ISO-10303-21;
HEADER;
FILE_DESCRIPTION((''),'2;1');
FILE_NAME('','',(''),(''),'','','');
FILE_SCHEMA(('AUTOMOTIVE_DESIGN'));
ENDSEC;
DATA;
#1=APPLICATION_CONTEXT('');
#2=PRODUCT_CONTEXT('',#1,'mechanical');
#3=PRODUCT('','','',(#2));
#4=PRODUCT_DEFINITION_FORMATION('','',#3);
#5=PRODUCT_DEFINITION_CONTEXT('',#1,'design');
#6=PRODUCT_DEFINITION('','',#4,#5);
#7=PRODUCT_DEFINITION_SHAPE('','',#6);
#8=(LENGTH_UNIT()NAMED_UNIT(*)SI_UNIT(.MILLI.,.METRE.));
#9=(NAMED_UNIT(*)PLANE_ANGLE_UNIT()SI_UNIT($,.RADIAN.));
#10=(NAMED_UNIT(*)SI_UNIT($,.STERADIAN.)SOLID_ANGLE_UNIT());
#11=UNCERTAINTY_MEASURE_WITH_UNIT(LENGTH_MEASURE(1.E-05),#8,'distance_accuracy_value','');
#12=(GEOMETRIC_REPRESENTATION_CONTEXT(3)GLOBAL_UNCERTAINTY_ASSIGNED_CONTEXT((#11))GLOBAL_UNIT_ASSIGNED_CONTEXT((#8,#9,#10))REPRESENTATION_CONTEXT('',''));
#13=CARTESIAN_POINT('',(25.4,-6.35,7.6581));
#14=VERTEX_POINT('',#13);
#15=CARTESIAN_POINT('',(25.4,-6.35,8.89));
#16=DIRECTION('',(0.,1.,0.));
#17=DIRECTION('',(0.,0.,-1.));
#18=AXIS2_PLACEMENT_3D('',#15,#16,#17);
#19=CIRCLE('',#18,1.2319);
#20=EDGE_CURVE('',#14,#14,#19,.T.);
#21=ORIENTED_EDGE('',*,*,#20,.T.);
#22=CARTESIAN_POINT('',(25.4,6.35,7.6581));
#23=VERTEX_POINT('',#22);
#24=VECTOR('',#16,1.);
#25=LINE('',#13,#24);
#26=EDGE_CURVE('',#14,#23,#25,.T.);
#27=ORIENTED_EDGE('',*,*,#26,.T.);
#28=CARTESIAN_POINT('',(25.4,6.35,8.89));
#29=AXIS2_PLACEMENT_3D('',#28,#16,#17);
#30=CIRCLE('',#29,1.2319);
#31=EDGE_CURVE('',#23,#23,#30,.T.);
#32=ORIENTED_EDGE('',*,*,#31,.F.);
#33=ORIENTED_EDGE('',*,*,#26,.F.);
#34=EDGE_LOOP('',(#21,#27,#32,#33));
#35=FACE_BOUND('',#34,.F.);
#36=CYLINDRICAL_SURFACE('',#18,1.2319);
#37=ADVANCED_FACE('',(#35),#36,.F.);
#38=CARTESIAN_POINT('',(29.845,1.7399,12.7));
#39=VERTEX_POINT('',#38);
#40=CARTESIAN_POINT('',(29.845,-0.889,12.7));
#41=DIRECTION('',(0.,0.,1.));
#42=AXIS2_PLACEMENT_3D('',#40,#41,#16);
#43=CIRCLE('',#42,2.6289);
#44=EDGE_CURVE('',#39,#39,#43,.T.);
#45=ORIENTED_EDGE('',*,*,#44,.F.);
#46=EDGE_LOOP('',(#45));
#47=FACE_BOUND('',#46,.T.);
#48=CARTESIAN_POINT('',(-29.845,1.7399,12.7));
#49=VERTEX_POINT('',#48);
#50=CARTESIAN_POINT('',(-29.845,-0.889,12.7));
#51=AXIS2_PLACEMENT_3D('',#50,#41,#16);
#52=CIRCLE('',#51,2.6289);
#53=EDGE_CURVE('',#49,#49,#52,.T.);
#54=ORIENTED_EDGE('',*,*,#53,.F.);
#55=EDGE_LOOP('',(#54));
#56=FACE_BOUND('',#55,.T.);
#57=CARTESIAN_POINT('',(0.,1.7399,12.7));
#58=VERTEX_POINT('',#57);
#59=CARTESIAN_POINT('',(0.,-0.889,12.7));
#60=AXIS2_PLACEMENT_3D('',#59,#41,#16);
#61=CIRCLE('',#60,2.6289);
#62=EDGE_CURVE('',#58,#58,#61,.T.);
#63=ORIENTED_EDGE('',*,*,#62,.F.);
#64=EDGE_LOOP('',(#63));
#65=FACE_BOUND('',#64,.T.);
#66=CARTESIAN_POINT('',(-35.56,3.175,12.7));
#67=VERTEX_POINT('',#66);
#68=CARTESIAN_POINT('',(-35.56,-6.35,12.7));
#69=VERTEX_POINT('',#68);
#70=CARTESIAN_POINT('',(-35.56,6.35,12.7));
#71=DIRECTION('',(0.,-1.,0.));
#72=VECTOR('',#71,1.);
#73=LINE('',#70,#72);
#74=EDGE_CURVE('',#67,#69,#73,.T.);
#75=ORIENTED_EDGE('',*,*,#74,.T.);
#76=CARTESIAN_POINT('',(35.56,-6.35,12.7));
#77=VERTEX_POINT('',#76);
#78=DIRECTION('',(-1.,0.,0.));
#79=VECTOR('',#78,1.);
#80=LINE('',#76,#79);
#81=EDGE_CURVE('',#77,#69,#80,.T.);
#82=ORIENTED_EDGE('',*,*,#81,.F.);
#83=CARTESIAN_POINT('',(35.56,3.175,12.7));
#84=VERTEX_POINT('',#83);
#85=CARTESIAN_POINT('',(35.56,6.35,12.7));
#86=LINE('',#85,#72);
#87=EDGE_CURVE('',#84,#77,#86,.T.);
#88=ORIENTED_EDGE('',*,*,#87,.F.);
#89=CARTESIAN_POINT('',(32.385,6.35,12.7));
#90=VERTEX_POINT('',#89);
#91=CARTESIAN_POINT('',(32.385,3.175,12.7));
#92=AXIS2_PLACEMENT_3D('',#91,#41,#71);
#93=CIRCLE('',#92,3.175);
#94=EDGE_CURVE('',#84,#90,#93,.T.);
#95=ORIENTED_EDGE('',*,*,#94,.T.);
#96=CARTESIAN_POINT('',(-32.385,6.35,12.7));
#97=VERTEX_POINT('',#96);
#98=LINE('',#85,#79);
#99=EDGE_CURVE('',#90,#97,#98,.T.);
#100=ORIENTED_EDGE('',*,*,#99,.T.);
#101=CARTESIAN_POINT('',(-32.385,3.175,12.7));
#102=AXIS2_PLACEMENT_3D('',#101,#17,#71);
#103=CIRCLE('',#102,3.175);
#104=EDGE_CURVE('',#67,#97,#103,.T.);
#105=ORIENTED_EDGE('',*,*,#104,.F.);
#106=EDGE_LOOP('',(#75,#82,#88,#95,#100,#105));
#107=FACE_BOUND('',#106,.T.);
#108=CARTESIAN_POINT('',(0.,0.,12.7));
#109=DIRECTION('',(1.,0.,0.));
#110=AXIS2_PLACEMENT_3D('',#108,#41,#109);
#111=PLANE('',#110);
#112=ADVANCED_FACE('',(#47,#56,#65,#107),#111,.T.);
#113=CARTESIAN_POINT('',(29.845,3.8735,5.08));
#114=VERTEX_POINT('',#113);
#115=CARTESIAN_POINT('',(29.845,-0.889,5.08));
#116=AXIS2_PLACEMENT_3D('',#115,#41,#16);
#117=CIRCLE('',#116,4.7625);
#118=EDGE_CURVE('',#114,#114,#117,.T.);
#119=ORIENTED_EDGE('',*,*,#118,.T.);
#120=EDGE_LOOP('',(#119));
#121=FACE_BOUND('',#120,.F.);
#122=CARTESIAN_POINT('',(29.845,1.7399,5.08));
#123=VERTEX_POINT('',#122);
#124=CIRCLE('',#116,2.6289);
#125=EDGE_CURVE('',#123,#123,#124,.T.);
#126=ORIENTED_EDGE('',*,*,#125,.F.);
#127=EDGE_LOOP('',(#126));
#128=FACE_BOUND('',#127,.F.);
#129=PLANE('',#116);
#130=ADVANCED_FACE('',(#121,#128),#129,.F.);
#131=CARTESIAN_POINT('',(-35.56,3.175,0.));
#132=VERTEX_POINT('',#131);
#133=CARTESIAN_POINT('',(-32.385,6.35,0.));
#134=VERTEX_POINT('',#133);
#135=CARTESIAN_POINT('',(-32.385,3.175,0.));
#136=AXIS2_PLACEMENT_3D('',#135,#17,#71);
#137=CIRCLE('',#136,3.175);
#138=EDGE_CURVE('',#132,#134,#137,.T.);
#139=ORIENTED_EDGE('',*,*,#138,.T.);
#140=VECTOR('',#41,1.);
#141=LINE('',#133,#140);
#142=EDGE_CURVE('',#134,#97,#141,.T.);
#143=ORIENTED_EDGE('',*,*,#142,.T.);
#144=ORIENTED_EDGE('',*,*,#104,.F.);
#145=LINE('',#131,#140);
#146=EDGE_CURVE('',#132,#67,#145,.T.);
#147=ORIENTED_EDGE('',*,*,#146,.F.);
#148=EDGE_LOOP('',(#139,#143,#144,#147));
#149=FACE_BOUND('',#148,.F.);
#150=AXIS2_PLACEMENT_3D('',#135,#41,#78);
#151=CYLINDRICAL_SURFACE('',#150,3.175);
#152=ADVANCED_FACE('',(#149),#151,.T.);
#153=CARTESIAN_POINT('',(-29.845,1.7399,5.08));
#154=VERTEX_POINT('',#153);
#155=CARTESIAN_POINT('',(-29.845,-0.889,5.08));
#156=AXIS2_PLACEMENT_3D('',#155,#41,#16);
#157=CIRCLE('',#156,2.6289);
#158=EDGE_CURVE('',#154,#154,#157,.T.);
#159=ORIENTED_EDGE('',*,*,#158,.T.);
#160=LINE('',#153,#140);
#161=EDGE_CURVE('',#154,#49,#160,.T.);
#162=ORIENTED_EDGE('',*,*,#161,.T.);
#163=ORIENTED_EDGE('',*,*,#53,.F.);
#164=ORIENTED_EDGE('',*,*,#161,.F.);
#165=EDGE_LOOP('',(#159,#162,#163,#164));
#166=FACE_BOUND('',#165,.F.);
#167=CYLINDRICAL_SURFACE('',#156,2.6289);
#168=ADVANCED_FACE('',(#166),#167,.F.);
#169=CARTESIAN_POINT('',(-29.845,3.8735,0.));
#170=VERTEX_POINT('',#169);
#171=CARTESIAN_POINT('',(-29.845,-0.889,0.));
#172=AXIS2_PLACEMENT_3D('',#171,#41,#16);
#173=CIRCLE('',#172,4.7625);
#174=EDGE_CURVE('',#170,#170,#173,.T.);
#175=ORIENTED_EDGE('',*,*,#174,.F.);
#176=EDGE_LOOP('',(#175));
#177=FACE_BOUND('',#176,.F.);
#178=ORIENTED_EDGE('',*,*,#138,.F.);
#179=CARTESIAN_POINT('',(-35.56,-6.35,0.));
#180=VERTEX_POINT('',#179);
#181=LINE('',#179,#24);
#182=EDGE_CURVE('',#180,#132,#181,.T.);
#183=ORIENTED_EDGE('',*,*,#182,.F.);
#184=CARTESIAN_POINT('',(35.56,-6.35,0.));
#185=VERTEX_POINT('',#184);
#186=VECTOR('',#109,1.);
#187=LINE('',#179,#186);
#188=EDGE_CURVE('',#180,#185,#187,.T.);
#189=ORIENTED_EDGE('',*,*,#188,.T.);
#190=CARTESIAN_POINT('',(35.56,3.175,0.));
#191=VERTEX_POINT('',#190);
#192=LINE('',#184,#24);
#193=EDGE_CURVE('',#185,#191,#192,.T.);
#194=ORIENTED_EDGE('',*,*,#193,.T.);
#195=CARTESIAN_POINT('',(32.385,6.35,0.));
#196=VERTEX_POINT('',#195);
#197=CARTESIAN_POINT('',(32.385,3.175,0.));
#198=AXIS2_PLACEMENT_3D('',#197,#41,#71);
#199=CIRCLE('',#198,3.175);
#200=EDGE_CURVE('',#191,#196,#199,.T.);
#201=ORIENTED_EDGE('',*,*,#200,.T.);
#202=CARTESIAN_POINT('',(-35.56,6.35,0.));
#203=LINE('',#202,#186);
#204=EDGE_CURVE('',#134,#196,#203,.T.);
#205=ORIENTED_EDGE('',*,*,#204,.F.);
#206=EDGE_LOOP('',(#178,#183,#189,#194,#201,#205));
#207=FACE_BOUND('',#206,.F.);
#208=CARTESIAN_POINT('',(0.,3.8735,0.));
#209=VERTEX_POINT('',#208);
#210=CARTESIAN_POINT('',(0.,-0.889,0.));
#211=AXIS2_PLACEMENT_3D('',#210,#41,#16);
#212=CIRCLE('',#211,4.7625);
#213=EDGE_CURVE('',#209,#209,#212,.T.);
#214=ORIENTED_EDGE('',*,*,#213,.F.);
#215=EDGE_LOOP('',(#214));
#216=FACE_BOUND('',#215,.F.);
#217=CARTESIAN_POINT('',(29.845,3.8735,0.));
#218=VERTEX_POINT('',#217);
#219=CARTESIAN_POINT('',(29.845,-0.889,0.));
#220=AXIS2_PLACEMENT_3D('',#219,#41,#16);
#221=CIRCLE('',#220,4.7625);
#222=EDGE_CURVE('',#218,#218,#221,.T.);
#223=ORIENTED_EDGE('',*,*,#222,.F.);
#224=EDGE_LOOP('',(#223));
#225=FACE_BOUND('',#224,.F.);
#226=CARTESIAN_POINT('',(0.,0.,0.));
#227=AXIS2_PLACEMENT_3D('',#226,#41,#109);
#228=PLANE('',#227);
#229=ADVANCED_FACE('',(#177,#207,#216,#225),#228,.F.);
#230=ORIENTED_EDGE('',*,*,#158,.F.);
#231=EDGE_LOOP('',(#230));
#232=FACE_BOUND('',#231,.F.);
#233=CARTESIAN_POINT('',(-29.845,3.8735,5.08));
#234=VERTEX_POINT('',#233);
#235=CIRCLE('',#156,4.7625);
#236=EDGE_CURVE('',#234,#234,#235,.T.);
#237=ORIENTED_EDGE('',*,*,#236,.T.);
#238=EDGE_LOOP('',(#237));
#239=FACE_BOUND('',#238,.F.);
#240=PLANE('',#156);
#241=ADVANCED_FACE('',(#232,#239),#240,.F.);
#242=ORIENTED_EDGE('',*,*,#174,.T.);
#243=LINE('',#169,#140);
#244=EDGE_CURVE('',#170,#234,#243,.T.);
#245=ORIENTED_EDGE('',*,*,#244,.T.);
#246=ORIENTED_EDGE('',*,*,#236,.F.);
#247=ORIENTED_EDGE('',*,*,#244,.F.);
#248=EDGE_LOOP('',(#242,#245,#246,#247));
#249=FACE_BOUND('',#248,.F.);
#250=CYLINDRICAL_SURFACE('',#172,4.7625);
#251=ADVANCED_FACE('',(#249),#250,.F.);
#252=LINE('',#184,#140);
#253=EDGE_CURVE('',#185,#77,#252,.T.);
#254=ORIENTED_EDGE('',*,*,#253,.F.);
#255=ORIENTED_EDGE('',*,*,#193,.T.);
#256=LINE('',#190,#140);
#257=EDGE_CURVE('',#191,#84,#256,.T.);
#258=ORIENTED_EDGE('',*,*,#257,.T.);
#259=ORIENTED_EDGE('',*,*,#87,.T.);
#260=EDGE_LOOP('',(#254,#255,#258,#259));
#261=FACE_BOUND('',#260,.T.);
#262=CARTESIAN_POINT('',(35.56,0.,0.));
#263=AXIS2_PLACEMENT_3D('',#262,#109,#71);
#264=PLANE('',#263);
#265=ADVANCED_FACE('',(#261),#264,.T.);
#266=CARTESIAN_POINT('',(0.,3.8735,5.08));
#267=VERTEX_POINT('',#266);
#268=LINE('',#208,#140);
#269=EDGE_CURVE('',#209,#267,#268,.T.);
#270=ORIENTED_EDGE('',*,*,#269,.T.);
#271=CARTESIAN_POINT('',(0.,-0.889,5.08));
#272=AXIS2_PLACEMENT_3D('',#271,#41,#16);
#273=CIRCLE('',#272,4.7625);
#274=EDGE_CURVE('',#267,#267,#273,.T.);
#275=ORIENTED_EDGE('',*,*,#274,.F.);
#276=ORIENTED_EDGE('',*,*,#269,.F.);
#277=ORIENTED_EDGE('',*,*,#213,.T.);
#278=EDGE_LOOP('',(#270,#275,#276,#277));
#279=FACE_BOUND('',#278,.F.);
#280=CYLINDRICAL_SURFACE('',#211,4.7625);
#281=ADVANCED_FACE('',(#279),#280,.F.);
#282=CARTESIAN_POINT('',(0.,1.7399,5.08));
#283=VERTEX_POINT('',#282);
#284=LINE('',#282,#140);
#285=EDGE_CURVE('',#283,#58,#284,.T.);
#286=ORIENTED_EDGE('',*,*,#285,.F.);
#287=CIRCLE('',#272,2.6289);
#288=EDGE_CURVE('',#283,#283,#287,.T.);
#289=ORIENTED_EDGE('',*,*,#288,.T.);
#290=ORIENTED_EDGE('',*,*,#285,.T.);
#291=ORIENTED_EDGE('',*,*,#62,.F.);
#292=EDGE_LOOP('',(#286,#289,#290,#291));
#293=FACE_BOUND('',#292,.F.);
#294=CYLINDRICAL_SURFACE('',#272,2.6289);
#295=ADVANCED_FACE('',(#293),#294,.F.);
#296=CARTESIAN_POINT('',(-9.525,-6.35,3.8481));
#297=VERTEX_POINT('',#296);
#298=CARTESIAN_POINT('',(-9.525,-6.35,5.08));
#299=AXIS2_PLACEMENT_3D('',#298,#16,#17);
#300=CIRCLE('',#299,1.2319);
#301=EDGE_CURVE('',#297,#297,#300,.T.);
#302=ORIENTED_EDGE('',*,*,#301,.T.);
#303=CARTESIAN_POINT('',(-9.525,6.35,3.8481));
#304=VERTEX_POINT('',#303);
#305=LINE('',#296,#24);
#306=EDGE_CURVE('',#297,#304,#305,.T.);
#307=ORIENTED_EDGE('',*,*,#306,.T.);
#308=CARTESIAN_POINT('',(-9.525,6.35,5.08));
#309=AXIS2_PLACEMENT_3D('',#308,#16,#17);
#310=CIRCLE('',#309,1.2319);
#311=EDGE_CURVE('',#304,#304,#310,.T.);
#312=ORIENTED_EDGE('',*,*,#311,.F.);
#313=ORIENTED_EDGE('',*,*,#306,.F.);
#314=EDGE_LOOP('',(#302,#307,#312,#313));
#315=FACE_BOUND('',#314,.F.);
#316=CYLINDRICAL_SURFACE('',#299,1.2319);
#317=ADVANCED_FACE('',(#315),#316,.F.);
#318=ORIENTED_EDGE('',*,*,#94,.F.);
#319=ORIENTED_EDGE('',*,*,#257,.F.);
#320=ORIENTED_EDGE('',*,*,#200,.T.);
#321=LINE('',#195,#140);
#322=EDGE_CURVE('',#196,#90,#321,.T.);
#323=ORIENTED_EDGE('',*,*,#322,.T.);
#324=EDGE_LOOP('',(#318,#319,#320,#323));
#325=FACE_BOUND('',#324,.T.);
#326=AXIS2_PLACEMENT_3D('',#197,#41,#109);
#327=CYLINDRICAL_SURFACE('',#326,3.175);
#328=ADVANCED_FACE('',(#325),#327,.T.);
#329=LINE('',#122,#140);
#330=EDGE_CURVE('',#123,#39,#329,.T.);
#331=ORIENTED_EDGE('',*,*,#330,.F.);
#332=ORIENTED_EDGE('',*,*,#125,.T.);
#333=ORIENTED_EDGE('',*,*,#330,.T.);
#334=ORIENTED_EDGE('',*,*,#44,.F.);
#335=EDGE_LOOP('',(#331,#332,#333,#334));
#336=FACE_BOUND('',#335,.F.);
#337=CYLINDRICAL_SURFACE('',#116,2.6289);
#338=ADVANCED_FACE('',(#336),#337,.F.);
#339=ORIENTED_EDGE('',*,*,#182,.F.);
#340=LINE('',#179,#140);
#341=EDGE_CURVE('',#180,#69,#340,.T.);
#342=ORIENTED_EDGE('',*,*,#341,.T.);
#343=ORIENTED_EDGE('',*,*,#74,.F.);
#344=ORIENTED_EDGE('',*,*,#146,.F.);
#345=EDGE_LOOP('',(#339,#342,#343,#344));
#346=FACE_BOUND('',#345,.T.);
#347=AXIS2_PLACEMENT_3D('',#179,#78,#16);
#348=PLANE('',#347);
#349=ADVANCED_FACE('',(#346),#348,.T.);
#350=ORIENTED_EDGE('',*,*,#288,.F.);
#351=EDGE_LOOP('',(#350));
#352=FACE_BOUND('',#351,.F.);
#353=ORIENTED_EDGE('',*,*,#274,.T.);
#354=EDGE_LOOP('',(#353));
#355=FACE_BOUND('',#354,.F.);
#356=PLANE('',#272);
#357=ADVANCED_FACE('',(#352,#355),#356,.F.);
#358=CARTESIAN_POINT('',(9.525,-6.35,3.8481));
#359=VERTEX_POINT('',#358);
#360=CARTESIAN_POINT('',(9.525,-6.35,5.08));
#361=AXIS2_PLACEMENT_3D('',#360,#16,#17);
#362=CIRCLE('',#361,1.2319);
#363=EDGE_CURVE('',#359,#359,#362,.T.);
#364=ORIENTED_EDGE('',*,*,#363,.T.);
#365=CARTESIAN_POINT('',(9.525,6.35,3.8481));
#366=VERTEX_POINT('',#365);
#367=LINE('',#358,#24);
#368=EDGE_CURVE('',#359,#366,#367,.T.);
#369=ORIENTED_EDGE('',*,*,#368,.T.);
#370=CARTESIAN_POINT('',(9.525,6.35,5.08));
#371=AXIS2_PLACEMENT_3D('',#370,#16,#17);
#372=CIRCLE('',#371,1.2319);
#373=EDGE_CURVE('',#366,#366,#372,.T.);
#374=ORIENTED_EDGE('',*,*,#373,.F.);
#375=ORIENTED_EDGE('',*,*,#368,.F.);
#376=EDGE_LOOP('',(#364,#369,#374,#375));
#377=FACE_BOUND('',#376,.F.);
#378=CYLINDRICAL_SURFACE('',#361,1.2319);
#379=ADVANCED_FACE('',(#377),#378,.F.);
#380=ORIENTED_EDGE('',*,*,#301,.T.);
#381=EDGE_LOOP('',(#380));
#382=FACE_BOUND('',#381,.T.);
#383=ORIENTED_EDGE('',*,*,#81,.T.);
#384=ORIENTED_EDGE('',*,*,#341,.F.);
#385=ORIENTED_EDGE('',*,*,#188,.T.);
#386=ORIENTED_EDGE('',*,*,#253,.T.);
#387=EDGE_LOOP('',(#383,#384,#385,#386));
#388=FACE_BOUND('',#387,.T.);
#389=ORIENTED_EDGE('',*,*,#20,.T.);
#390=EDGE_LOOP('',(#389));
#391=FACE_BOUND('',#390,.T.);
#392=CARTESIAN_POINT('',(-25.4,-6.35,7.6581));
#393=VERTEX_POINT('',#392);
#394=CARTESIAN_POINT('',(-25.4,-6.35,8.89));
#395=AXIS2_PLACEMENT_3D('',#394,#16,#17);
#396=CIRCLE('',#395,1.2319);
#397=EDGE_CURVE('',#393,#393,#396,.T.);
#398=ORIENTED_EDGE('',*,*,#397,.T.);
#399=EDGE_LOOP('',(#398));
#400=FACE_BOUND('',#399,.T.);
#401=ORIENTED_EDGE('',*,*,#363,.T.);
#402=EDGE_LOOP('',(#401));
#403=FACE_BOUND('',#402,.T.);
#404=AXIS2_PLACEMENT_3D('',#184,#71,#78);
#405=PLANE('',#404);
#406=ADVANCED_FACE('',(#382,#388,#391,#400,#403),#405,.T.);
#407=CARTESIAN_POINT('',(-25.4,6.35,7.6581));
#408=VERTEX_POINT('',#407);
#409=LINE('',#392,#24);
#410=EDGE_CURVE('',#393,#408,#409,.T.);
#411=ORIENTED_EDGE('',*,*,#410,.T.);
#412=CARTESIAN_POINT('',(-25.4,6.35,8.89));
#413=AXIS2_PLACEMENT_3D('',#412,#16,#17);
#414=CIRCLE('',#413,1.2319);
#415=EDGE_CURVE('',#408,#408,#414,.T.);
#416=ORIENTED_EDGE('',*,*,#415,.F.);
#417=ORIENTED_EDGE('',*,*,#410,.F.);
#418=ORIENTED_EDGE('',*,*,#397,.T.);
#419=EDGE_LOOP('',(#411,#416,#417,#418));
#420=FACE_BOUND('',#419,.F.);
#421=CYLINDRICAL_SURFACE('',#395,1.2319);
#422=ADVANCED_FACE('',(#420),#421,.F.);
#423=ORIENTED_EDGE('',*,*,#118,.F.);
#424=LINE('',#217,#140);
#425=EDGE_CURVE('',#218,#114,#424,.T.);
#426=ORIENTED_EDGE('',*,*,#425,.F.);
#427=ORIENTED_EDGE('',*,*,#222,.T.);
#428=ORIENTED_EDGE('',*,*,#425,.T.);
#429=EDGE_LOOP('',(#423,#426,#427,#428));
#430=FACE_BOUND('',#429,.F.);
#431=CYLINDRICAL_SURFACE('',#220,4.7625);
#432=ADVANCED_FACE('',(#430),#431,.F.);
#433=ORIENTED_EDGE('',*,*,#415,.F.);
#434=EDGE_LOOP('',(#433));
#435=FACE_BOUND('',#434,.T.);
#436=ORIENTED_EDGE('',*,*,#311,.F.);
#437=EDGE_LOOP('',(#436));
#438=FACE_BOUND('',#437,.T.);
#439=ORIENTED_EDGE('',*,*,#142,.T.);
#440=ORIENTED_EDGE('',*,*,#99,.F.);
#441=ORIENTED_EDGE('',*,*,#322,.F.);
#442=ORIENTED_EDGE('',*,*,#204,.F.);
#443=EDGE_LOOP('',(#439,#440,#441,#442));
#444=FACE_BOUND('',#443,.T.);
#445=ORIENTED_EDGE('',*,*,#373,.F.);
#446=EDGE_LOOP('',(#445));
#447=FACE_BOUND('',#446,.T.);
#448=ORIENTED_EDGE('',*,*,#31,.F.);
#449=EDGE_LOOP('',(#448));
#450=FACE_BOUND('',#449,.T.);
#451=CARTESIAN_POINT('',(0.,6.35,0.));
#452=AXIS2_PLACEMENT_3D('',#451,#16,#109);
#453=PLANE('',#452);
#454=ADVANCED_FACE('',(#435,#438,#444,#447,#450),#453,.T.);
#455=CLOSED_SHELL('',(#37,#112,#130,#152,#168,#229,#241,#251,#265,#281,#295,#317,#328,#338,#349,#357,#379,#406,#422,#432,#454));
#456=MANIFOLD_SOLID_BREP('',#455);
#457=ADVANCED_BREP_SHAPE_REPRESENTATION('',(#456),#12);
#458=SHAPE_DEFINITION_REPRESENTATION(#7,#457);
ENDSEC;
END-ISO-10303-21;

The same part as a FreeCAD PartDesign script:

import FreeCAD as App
import Part
import Sketcher

V = App.Vector
Q = App.Units.Quantity


def edges_at(feature, points):
    """Names of the edges that pass closest to the given points."""
    edges = feature.Shape.Edges
    near = lambda p: min(range(len(edges)), key=lambda i: edges[i].distToShape(Part.Vertex(*p))[0])
    return sorted({f"Edge{near(p) + 1}" for p in points})


def add_polygon(sketch, points):
    """Adds a closed chain of lines whose ends are joined by coincident constraints."""
    first, n = sketch.GeometryCount, len(points)
    for a, b in zip(points, points[1:] + points[:1]):
        sketch.addGeometry(Part.LineSegment(App.Vector(*a, 0), App.Vector(*b, 0)), False)
    for i in range(n):
        sketch.addConstraint(Sketcher.Constraint("Coincident", first + i, 2, first + (i + 1) % n, 1))

doc = App.newDocument("Part")
body = doc.addObject("PartDesign::Body", "Body")

# Sketch on XY plane
sketch1 = body.newObject("Sketcher::SketchObject", "Sketch")
sketch1.AttachmentSupport = (doc.getObject("XY_Plane"), [""])
sketch1.MapMode = "FlatFace"
add_polygon(sketch1, [(36, -6), (36, 6), (-36, 6), (-36, -6)])  # lines 0-3
sketch1.addConstraint([
    Sketcher.Constraint("Vertical", 0),
    Sketcher.Constraint("Horizontal", 1),
    Sketcher.Constraint("Vertical", 2),
    Sketcher.Constraint("Horizontal", 3),
    Sketcher.Constraint("Symmetric", 0, 2, 2, 2, -1, 1),
    Sketcher.Constraint("DistanceX", 1, 2, 1, 1, Q("2.8 in")),
    Sketcher.Constraint("DistanceY", 0, 1, 0, 2, Q("0.5 in")),
])
pad1 = body.newObject("PartDesign::Pad", "Pad")
pad1.Profile = sketch1
pad1.Length = Q("0.5 in")

# Sketch on XY plane
sketch2 = body.newObject("Sketcher::SketchObject", "Sketch001")
sketch2.AttachmentSupport = (doc.getObject("XY_Plane"), [""])
sketch2.MapMode = "FlatFace"
sketch2.addGeometry([
    Part.Circle(V(-29.8, -0.9, 0), V(0, 0, 1), 2.6),
    Part.Circle(V(0, -0.9, 0), V(0, 0, 1), 2.6),
    Part.Circle(V(29.8, -0.9, 0), V(0, 0, 1), 2.6),
], False)
sketch2.addConstraint([
    Sketcher.Constraint("Equal", 0, 1),
    Sketcher.Constraint("Equal", 1, 2),
    Sketcher.Constraint("Symmetric", 0, 3, 2, 3, -2),
    Sketcher.Constraint("PointOnObject", 1, 3, -2),
    Sketcher.Constraint("Horizontal", 0, 3, 1, 3),
    Sketcher.Constraint("Diameter", 0, Q("0.207 in")),
    Sketcher.Constraint("DistanceX", 0, 3, 2, 3, Q("2.35 in")),
    Sketcher.Constraint("DistanceY", 0, 3, -1, 1, Q("0.035 in")),
])
doc.recompute()
hole = body.newObject("PartDesign::Hole", "Hole")
hole.Profile = sketch2
hole.ThreadType = "None"
hole.Diameter = Q("0.207 in")
hole.DepthType = "ThroughAll"
hole.HoleCutType = "Counterbore"
hole.HoleCutDiameter = Q("0.375 in")
hole.HoleCutDepth = Q("0.2 in")
hole.Reversed = True

# Sketch on XZ plane
sketch3 = body.newObject("Sketcher::SketchObject", "Sketch002")
sketch3.AttachmentSupport = (doc.getObject("XZ_Plane"), [""])
sketch3.MapMode = "FlatFace"
sketch3.AttachmentOffset = App.Placement(V(0, 0, 0.25 * 25.4), App.Rotation())
sketch3.addGeometry([
    Part.Circle(V(25.4, 8.9, 0), V(0, 0, 1), 1.2),
    Part.Circle(V(9.5, 5.1, 0), V(0, 0, 1), 1.2),
    Part.Circle(V(-9.5, 5.1, 0), V(0, 0, 1), 1.2),
    Part.Circle(V(-25.4, 8.9, 0), V(0, 0, 1), 1.2),
], False)
sketch3.addConstraint([
    Sketcher.Constraint("Equal", 0, 1),
    Sketcher.Constraint("Equal", 1, 2),
    Sketcher.Constraint("Equal", 2, 3),
    Sketcher.Constraint("Symmetric", 1, 3, 2, 3, -2),
    Sketcher.Constraint("Symmetric", 0, 3, 3, 3, -2),
    Sketcher.Constraint("Diameter", 0, Q("0.097 in")),
    Sketcher.Constraint("DistanceX", -1, 1, 0, 3, Q("1 in")),
    Sketcher.Constraint("DistanceY", -1, 1, 1, 3, Q("0.2 in")),
    Sketcher.Constraint("DistanceY", -1, 1, 0, 3, Q("0.35 in")),
    Sketcher.Constraint("DistanceX", 2, 3, 1, 3, Q("0.75 in")),
])
doc.recompute()
hole2 = body.newObject("PartDesign::Hole", "Hole001")
hole2.Profile = sketch3
hole2.ThreadType = "None"
hole2.Diameter = Q("0.097 in")
hole2.DepthType = "ThroughAll"
doc.recompute()

fillet = body.newObject("PartDesign::Fillet", "Fillet")
fillet.Base = (hole2, edges_at(hole2, [(35.56, 6.35, 6.35), (-35.56, 6.35, 6.35)]))
fillet.Radius = Q("0.125 in")

doc.recompute()
